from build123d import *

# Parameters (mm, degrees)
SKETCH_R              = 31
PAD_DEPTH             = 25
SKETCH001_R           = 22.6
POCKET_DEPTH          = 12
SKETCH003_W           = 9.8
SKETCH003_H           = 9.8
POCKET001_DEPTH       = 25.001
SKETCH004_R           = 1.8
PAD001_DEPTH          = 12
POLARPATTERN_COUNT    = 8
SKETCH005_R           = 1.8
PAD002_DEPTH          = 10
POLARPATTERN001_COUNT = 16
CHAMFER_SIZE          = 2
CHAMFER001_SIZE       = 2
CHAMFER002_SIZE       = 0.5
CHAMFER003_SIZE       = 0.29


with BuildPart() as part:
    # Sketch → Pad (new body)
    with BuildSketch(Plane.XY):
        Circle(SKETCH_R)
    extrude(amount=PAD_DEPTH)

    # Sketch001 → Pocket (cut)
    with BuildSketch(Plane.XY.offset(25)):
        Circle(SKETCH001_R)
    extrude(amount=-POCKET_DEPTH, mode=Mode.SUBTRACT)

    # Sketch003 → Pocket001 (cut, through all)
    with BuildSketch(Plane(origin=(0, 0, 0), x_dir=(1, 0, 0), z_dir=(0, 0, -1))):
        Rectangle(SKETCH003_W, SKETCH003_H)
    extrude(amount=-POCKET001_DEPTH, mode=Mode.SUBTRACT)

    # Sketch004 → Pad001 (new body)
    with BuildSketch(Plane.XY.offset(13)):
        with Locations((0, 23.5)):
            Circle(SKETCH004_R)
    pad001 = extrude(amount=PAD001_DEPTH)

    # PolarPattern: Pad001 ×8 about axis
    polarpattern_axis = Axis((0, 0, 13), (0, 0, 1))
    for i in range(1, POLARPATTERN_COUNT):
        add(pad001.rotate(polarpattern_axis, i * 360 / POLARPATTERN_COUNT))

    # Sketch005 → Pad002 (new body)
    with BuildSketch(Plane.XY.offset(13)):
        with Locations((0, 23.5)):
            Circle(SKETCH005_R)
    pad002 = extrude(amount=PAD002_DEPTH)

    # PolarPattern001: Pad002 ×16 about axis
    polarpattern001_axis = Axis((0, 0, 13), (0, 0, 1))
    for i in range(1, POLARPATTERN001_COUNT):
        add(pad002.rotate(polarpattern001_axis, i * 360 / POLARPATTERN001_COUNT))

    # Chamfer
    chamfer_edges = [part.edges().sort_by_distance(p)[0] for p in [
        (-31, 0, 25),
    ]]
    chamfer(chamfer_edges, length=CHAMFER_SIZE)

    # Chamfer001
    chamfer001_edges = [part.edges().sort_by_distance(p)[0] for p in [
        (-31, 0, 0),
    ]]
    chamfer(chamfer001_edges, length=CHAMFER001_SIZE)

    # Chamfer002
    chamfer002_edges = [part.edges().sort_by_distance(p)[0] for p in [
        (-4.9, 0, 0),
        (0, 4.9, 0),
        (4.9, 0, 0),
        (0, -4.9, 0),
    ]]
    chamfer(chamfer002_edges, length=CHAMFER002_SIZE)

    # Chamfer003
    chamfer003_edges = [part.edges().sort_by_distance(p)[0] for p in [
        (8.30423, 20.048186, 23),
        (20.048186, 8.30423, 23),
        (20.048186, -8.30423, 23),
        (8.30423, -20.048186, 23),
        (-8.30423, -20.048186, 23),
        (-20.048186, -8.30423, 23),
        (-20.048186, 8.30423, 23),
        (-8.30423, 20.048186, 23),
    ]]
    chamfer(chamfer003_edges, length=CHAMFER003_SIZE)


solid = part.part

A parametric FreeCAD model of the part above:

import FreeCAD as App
import Part
import Sketcher

V = App.Vector
Q = App.Units.Quantity


def edges_at(feature, points):
    """Names of the edges that pass closest to the given points."""
    edges = feature.Shape.Edges
    near = lambda p: min(range(len(edges)), key=lambda i: edges[i].distToShape(Part.Vertex(*p))[0])
    return sorted({f"Edge{near(p) + 1}" for p in points})


def add_polygon(sketch, points):
    """Adds a closed chain of lines whose ends are joined by coincident constraints."""
    first, n = sketch.GeometryCount, len(points)
    for a, b in zip(points, points[1:] + points[:1]):
        sketch.addGeometry(Part.LineSegment(App.Vector(*a, 0), App.Vector(*b, 0)), False)
    for i in range(n):
        sketch.addConstraint(Sketcher.Constraint("Coincident", first + i, 2, first + (i + 1) % n, 1))

doc = App.newDocument("Part")
body = doc.addObject("PartDesign::Body", "Body")

# Sketch on XY plane
sketch1 = doc.addObject("Sketcher::SketchObject", "Sketch")
body.addObject(sketch1)
sketch1.AttachmentSupport = (doc.XY_Plane, [""])
sketch1.MapMode = "FlatFace"
sketch1.addGeometry(Part.Circle(V(0, 0, 0), V(0, 0, 1), 31), False)
sketch1.addConstraint([
    Sketcher.Constraint("Coincident", 0, 3, -1, 1),
    Sketcher.Constraint("Diameter", 0, Q("62 mm")),
])
pad1 = doc.addObject("PartDesign::Pad", "Pad")
body.addObject(pad1)
pad1.Profile = sketch1
pad1.Length = 25

# Sketch on XY plane
sketch2 = doc.addObject("Sketcher::SketchObject", "Sketch001")
body.addObject(sketch2)
sketch2.AttachmentSupport = (doc.XY_Plane, [""])
sketch2.MapMode = "FlatFace"
sketch2.AttachmentOffset = App.Placement(V(0, 0, 25), App.Rotation())
sketch2.addGeometry(Part.Circle(V(0, 0, 0), V(0, 0, 1), 23), False)
sketch2.addConstraint([
    Sketcher.Constraint("Coincident", 0, 3, -1, 1),
    Sketcher.Constraint("Diameter", 0, Q("45.2 mm")),
])
pocket1 = doc.addObject("PartDesign::Pocket", "Pocket")
body.addObject(pocket1)
pocket1.Profile = sketch2
pocket1.Length = 12

# Sketch on XY plane
sketch3 = doc.addObject("Sketcher::SketchObject", "Sketch002")
body.addObject(sketch3)
sketch3.AttachmentSupport = (doc.XY_Plane, [""])
sketch3.MapMode = "FlatFace"
add_polygon(sketch3, [(-5, -5), (-5, 5), (5, 5), (5, -5)])  # lines 0-3
sketch3.addConstraint([
    Sketcher.Constraint("Vertical", 0),
    Sketcher.Constraint("Horizontal", 1),
    Sketcher.Constraint("Vertical", 2),
    Sketcher.Constraint("Horizontal", 3),
    Sketcher.Constraint("Symmetric", 0, 2, 2, 2, -1, 1),
    Sketcher.Constraint("Equal", 3, 0),
    Sketcher.Constraint("DistanceX", 1, 1, 1, 2, Q("9.8 mm")),
])
pocket2 = doc.addObject("PartDesign::Pocket", "Pocket001")
body.addObject(pocket2)
pocket2.Profile = sketch3
pocket2.Type = "ThroughAll"
pocket2.Reversed = True

# Sketch on XY plane
sketch4 = doc.addObject("Sketcher::SketchObject", "Sketch003")
body.addObject(sketch4)
sketch4.AttachmentSupport = (doc.XY_Plane, [""])
sketch4.MapMode = "FlatFace"
sketch4.AttachmentOffset = App.Placement(V(0, 0, 13), App.Rotation())
sketch4.addGeometry(Part.Circle(V(0, 23.5, 0), V(0, 0, 1), 1.8), False)
sketch4.addConstraint([
    Sketcher.Constraint("PointOnObject", 0, 3, -2),
    Sketcher.Constraint("Diameter", 0, Q("3.6 mm")),
    Sketcher.Constraint("DistanceY", -1, 1, 0, 3, Q("23.5 mm")),
])
pad2 = doc.addObject("PartDesign::Pad", "Pad001")
body.addObject(pad2)
pad2.Profile = sketch4
pad2.Length = 12
doc.recompute()

polarpattern = doc.addObject("PartDesign::PolarPattern", "PolarPattern")
body.addObject(polarpattern)
polarpattern.Originals = [pad2]
polarpattern.Axis = (doc.Z_Axis, [""])
polarpattern.Angle = 360
polarpattern.Occurrences = 8
body.Tip = polarpattern

# Sketch on XY plane
sketch5 = doc.addObject("Sketcher::SketchObject", "Sketch004")
body.addObject(sketch5)
sketch5.AttachmentSupport = (doc.XY_Plane, [""])
sketch5.MapMode = "FlatFace"
sketch5.AttachmentOffset = App.Placement(V(0, 0, 13), App.Rotation())
sketch5.addGeometry(Part.Circle(V(0, 23.5, 0), V(0, 0, 1), 1.8), False)
sketch5.addConstraint([
    Sketcher.Constraint("PointOnObject", 0, 3, -2),
    Sketcher.Constraint("Diameter", 0, Q("3.6 mm")),
    Sketcher.Constraint("DistanceY", -1, 1, 0, 3, Q("23.5 mm")),
])
pad3 = doc.addObject("PartDesign::Pad", "Pad002")
body.addObject(pad3)
pad3.Profile = sketch5
pad3.Length = 10
doc.recompute()

polarpattern2 = doc.addObject("PartDesign::PolarPattern", "PolarPattern001")
body.addObject(polarpattern2)
polarpattern2.Originals = [pad3]
polarpattern2.Axis = (doc.Z_Axis, [""])
polarpattern2.Angle = 360
polarpattern2.Occurrences = 16
body.Tip = polarpattern2
doc.recompute()

chamfer = doc.addObject("PartDesign::Chamfer", "Chamfer")
body.addObject(chamfer)
chamfer.Base = (polarpattern2, edges_at(polarpattern2, [(-31, 0, 25)]))
chamfer.Size = 2
doc.recompute()

chamfer2 = doc.addObject("PartDesign::Chamfer", "Chamfer001")
body.addObject(chamfer2)
chamfer2.Base = (chamfer, edges_at(chamfer, [(-31, 0, 0)]))
chamfer2.Size = 2
doc.recompute()

chamfer3 = doc.addObject("PartDesign::Chamfer", "Chamfer002")
body.addObject(chamfer3)
chamfer3.Base = (chamfer2, edges_at(chamfer2, [
    (-4.9, 0, 0),
    (0, 4.9, 0),
    (4.9, 0, 0),
    (0, -4.9, 0),
]))
chamfer3.Size = 0.5
doc.recompute()

chamfer4 = doc.addObject("PartDesign::Chamfer", "Chamfer003")
body.addObject(chamfer4)
chamfer4.Base = (chamfer3, edges_at(chamfer3, [
    (8.304, 20.048, 23),
    (20.048, 8.304, 23),
    (20.048, -8.304, 23),
    (8.304, -20.048, 23),
    (-8.304, -20.048, 23),
    (-20.048, -8.304, 23),
    (-20.048, 8.304, 23),
    (-8.304, 20.048, 23),
]))
chamfer4.Size = 0.29

doc.recompute()
